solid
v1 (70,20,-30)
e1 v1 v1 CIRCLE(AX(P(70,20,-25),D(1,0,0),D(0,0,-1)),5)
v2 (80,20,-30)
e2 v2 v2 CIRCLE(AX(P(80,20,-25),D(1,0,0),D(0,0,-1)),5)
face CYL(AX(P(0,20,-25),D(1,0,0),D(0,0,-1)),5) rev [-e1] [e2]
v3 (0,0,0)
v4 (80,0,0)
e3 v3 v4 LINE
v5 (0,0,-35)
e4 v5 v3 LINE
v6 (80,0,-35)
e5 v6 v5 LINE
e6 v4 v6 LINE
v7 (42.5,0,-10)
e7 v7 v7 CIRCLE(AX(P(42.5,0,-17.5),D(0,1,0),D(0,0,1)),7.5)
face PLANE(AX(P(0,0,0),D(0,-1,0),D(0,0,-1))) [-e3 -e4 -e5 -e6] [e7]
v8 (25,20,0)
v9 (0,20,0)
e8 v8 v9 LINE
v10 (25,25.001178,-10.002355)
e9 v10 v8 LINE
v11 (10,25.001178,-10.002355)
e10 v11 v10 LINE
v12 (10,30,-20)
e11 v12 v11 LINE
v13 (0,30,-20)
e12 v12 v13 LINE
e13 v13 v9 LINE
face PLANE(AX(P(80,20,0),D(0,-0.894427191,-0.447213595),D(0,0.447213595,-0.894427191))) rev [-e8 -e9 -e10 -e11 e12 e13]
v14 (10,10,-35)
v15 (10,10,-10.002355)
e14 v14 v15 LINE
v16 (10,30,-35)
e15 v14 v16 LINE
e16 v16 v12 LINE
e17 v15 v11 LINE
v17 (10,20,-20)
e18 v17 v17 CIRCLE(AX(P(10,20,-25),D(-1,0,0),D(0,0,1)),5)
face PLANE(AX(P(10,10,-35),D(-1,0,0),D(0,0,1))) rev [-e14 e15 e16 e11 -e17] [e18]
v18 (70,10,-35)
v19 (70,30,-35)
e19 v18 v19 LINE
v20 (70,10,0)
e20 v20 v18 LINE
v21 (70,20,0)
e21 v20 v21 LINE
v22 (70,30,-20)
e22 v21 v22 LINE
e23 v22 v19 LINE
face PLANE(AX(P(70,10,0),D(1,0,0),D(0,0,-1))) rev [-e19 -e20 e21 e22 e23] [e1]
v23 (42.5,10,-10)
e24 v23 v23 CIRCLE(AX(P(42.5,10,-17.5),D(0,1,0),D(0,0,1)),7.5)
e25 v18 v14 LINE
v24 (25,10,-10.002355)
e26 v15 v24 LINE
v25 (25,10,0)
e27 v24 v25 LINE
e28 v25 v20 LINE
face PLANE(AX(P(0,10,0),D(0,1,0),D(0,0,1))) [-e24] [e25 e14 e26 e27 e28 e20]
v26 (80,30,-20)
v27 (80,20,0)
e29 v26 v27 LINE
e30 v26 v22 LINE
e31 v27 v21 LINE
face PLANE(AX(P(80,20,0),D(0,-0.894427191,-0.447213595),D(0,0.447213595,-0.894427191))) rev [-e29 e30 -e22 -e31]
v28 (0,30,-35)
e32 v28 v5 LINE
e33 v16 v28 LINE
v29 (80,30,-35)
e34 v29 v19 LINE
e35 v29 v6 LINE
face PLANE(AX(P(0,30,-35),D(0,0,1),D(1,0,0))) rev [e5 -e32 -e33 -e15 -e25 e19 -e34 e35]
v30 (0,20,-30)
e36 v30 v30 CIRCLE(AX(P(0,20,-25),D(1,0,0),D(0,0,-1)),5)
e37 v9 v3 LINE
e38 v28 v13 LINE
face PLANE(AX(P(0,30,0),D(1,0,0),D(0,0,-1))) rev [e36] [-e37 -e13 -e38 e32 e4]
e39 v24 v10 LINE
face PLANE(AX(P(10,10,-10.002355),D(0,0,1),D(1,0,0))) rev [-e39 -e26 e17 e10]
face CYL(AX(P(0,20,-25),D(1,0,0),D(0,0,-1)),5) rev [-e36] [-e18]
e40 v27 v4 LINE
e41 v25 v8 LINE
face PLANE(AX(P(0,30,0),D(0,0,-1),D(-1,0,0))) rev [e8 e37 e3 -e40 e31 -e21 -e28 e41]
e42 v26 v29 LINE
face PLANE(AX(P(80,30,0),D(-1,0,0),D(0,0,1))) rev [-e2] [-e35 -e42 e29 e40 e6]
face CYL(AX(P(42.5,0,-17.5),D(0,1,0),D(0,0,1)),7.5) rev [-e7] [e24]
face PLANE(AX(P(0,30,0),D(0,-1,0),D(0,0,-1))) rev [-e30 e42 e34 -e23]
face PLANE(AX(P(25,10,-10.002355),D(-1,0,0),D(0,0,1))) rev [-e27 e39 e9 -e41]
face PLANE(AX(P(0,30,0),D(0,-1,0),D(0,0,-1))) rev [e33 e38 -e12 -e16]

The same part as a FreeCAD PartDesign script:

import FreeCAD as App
import Part
import Sketcher
from FreeCAD import Vector


def add_polygon(sketch, points):
    """Adds a closed chain of lines whose ends are joined by coincident constraints."""
    first, n = sketch.GeometryCount, len(points)
    for a, b in zip(points, points[1:] + points[:1]):
        sketch.addGeometry(Part.LineSegment(App.Vector(*a, 0), App.Vector(*b, 0)), False)
    for i in range(n):
        sketch.addConstraint(Sketcher.Constraint("Coincident", first + i, 2, first + (i + 1) % n, 1))

doc = App.newDocument("Part")
params = doc.addObject("Spreadsheet::Sheet", "Params")
for row, (alias, value) in enumerate([
    ("sketch1_width", "80 mm"),
    ("sketch1_height", "35 mm"),
    ("pad1_length", "30 mm"),
    ("sketch2_width", "15 mm"),
    ("sketch2_width2", "45 mm"),
    ("sketch2_height", "35 mm"),
    ("pocket1_length", "20 mm"),
    ("sketch3_width", "10 mm"),
    ("sketch3_height", "20 mm"),
    ("sketch4_diameter", "10 mm"),
    ("sketch5_diameter", "15 mm"),
], start=1):
    params.set(f"A{row}", alias)
    params.set(f"B{row}", "=" + value)
    params.setAlias(f"B{row}", alias)

body = doc.addObject("PartDesign::Body", "Body")

sketch1 = body.newObject("Sketcher::SketchObject", "Sketch")
sketch1.AttachmentSupport = (doc.getObject("XZ_Plane"), [""])
sketch1.MapMode = "FlatFace"
add_polygon(sketch1, [(0, -35), (0, 0), (80, 0), (80, -35)])
sketch1.addConstraint(Sketcher.Constraint("Vertical", 0))
sketch1.addConstraint(Sketcher.Constraint("Horizontal", 1))
sketch1.addConstraint(Sketcher.Constraint("Vertical", 2))
sketch1.addConstraint(Sketcher.Constraint("Horizontal", 3))
sketch1.addConstraint(Sketcher.Constraint("Coincident", 0, 2, -1, 1))
sketch1.addConstraint(Sketcher.Constraint("DistanceX", 1, 1, 1, 2, 80.0))
sketch1.addConstraint(Sketcher.Constraint("DistanceY", 0, 1, 0, 2, 35.0))
sketch1.setExpression("Constraints[9]", "Params.sketch1_width")
sketch1.setExpression("Constraints[10]", "Params.sketch1_height")
pad1 = body.newObject("PartDesign::Pad", "Pad")
pad1.Profile = sketch1
pad1.setExpression("Length", "Params.pad1_length")
pad1.Reversed = True

sketch2 = body.newObject("Sketcher::SketchObject", "Sketch001")
sketch2.AttachmentSupport = (doc.getObject("XZ_Plane"), [""])
sketch2.MapMode = "FlatFace"
sketch2.AttachmentOffset = App.Placement(Vector(0, 0, -30), App.Rotation())
add_polygon(sketch2, [(10, -35), (10, -10.002355), (25, -10.002355), (25, 0), (70, 0), (70, -35)])
sketch2.addConstraint(Sketcher.Constraint("Vertical", 0))
sketch2.addConstraint(Sketcher.Constraint("Horizontal", 1))
sketch2.addConstraint(Sketcher.Constraint("Vertical", 2))
sketch2.addConstraint(Sketcher.Constraint("Horizontal", 3))
sketch2.addConstraint(Sketcher.Constraint("Vertical", 4))
sketch2.addConstraint(Sketcher.Constraint("Horizontal", 5))
sketch2.addConstraint(Sketcher.Constraint("PointOnObject", 2, 2, -1))
sketch2.addConstraint(Sketcher.Constraint("DistanceX", 1, 1, 1, 2, 15.0))
sketch2.addConstraint(Sketcher.Constraint("DistanceX", 3, 1, 3, 2, 45.0))
sketch2.addConstraint(Sketcher.Constraint("DistanceY", 4, 2, 4, 1, 35.0))
sketch2.addConstraint(Sketcher.Constraint("DistanceX", -1, 1, 0, 2, 10.0))
sketch2.addConstraint(Sketcher.Constraint("DistanceY", 0, 1, 0, 2, 24.997645))
sketch2.setExpression("Constraints[13]", "Params.sketch2_width")
sketch2.setExpression("Constraints[14]", "Params.sketch2_width2")
sketch2.setExpression("Constraints[15]", "Params.sketch2_height")
pocket1 = body.newObject("PartDesign::Pocket", "Pocket")
pocket1.Profile = sketch2
pocket1.setExpression("Length", "Params.pocket1_length")
pocket1.Reversed = True

sketch3 = body.newObject("Sketcher::SketchObject", "Sketch002")
sketch3.AttachmentSupport = (doc.getObject("YZ_Plane"), [""])
sketch3.MapMode = "FlatFace"
add_polygon(sketch3, [(20, 0), (30, 0), (30, -20)])
sketch3.addConstraint(Sketcher.Constraint("Horizontal", 0))
sketch3.addConstraint(Sketcher.Constraint("Vertical", 1))
sketch3.addConstraint(Sketcher.Constraint("PointOnObject", 0, 2, -1))
sketch3.addConstraint(Sketcher.Constraint("DistanceX", 0, 1, 0, 2, 10.0))
sketch3.addConstraint(Sketcher.Constraint("DistanceY", 1, 2, 1, 1, 20.0))
sketch3.addConstraint(Sketcher.Constraint("DistanceX", -1, 1, 0, 2, 30.0))
sketch3.setExpression("Constraints[6]", "Params.sketch3_width")
sketch3.setExpression("Constraints[7]", "Params.sketch3_height")
pocket2 = body.newObject("PartDesign::Pocket", "Pocket001")
pocket2.Profile = sketch3
pocket2.Type = "ThroughAll"
pocket2.Reversed = True

sketch4 = body.newObject("Sketcher::SketchObject", "Sketch003")
sketch4.AttachmentSupport = (doc.getObject("YZ_Plane"), [""])
sketch4.MapMode = "FlatFace"
sketch4.AttachmentOffset = App.Placement(Vector(0, 0, 80), App.Rotation())
sketch4.addGeometry(Part.Circle(Vector(20, -25, 0), Vector(0, 0, 1), 5), False)
sketch4.addConstraint(Sketcher.Constraint("Diameter", 0, 10.0))
sketch4.addConstraint(Sketcher.Constraint("DistanceX", -1, 1, 0, 3, 20.0))
sketch4.addConstraint(Sketcher.Constraint("DistanceY", 0, 3, -1, 1, 25.0))
sketch4.setExpression("Constraints[0]", "Params.sketch4_diameter")
pocket3 = body.newObject("PartDesign::Pocket", "Pocket002")
pocket3.Profile = sketch4
pocket3.Type = "ThroughAll"

sketch5 = body.newObject("Sketcher::SketchObject", "Sketch004")
sketch5.AttachmentSupport = (doc.getObject("XZ_Plane"), [""])
sketch5.MapMode = "FlatFace"
sketch5.AttachmentOffset = App.Placement(Vector(0, 0, -10), App.Rotation())
sketch5.addGeometry(Part.Circle(Vector(42.5, -17.5, 0), Vector(0, 0, 1), 7.5), False)
sketch5.addConstraint(Sketcher.Constraint("Diameter", 0, 15.0))
sketch5.addConstraint(Sketcher.Constraint("DistanceX", -1, 1, 0, 3, 42.5))
sketch5.addConstraint(Sketcher.Constraint("DistanceY", 0, 3, -1, 1, 17.5))
sketch5.setExpression("Constraints[0]", "Params.sketch5_diameter")
pocket4 = body.newObject("PartDesign::Pocket", "Pocket003")
pocket4.Profile = sketch5
pocket4.Type = "ThroughAll"
pocket4.Reversed = True

doc.recompute()
